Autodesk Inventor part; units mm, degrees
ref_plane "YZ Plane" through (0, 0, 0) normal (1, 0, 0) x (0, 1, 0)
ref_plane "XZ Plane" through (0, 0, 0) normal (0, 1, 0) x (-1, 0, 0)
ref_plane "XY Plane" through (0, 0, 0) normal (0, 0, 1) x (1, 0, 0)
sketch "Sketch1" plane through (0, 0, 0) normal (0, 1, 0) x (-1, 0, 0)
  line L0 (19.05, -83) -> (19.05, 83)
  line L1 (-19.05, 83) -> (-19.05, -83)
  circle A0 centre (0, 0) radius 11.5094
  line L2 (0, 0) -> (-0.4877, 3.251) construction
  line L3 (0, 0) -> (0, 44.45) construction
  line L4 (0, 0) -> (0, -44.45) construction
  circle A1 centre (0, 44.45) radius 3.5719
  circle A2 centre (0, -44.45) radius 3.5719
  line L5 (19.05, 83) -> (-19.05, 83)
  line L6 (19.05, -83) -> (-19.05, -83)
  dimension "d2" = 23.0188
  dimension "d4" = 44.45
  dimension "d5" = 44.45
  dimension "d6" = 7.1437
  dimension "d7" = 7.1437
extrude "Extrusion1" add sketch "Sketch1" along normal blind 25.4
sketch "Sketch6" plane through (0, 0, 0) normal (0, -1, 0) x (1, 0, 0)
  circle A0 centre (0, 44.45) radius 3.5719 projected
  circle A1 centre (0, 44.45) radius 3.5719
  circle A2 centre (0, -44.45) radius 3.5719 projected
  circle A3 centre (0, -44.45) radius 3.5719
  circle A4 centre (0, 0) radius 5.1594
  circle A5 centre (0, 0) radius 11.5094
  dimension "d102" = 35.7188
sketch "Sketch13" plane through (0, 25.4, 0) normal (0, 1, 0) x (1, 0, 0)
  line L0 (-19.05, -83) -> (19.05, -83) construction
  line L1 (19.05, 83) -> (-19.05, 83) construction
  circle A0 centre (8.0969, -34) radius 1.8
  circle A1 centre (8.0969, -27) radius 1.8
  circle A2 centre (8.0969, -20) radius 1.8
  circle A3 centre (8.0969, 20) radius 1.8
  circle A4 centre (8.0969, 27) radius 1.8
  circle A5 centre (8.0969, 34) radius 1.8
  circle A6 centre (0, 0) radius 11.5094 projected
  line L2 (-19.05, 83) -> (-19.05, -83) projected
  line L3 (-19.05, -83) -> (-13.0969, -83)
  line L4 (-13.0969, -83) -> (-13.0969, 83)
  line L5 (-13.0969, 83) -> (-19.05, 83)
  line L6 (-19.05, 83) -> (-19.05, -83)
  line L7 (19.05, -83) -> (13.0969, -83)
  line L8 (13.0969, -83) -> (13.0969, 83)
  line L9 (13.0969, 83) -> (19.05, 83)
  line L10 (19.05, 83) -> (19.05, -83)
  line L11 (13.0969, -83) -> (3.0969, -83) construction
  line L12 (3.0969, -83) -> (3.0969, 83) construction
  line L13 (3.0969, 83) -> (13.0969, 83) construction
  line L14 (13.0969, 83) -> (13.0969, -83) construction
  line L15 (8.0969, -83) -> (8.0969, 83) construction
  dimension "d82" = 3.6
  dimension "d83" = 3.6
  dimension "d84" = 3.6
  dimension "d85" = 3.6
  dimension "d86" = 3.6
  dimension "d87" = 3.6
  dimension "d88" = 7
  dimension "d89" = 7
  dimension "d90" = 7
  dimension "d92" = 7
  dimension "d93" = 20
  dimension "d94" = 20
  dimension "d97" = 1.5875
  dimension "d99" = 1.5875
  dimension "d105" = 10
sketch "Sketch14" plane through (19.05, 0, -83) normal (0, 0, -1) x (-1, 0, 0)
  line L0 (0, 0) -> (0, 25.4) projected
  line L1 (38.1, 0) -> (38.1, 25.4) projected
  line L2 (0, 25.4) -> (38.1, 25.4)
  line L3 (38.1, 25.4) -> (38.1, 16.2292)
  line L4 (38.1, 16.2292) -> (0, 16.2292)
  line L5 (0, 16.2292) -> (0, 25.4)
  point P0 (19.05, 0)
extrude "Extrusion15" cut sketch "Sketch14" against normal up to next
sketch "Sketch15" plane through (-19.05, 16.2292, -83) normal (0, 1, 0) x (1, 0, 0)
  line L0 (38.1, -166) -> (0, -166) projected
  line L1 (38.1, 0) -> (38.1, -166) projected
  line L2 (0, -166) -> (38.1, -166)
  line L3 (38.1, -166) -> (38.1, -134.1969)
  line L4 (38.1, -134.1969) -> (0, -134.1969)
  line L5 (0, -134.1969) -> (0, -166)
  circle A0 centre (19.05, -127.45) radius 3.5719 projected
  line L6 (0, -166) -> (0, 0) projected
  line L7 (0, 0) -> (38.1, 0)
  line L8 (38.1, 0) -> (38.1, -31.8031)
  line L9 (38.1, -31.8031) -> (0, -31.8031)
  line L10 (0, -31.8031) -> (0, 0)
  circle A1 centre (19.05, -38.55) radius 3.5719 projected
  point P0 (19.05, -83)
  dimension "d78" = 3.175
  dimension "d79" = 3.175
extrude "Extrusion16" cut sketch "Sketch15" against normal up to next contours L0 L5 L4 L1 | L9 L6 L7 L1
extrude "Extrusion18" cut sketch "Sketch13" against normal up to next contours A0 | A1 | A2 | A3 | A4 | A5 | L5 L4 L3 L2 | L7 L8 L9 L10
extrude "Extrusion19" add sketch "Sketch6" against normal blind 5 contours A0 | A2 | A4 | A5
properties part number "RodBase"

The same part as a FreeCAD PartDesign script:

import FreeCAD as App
import Part
import Sketcher
from FreeCAD import Vector
Q = App.Units.Quantity


def add_polygon(sketch, points):
    """Adds a closed chain of lines whose ends are joined by coincident constraints."""
    first, n = sketch.GeometryCount, len(points)
    for a, b in zip(points, points[1:] + points[:1]):
        sketch.addGeometry(Part.LineSegment(App.Vector(*a, 0), App.Vector(*b, 0)), False)
    for i in range(n):
        sketch.addConstraint(Sketcher.Constraint("Coincident", first + i, 2, first + (i + 1) % n, 1))

doc = App.newDocument("Part")
params = doc.addObject("Spreadsheet::Sheet", "Params")
for row, (alias, value) in enumerate([
    ("sketch1_diameter", "0.281252 in"),
    ("sketch1_diameter2", "0.906252 in"),
    ("sketch1_width", "1.5 in"),
    ("pad1_length", "1 in"),
    ("sketch2_width", "1.5 in"),
    ("sketch3_width", "1.5 in"),
    ("pocket2_length", "16.2292 mm"),
    ("sketch4_width", "0.2343701 in"),
    ("pocket3_length", "1 in"),
    ("sketch5_diameter", "0.281252 in"),
    ("sketch5_diameter2", "0.906252 in"),
    ("pad2_length", "5 mm"),
], start=1):
    params.set(f"A{row}", alias)
    params.set(f"B{row}", "=" + value)
    params.setAlias(f"B{row}", alias)

body = doc.addObject("PartDesign::Body", "Body")

# Sketch on XZ plane
sketch1 = body.newObject("Sketcher::SketchObject", "Sketch")
sketch1.AttachmentSupport = (doc.getObject("XZ_Plane"), [""])
sketch1.MapMode = "FlatFace"
add_polygon(sketch1, [(19.1, -83), (-19.1, -83), (-19.1, 83), (19.1, 83)])  # lines 0-3
sketch1.addGeometry(Part.Circle(Vector(0, -44.5, 0), Vector(0, 0, 1), 3.6), False)  # 4
sketch1.addGeometry(Part.Circle(Vector(0, 0, 0), Vector(0, 0, 1), 11.5), False)  # 5
sketch1.addGeometry(Part.Circle(Vector(0, 44.5, 0), Vector(0, 0, 1), 3.6), False)  # 6
sketch1.addConstraint(Sketcher.Constraint("Horizontal", 0))
sketch1.addConstraint(Sketcher.Constraint("Vertical", 1))
sketch1.addConstraint(Sketcher.Constraint("Horizontal", 2))
sketch1.addConstraint(Sketcher.Constraint("Vertical", 3))
sketch1.addConstraint(Sketcher.Constraint("Coincident", 5, 3, -1, 1))
sketch1.addConstraint(Sketcher.Constraint("Equal", 4, 6))
sketch1.addConstraint(Sketcher.Constraint("Symmetric", 4, 3, 6, 3, -1, 1))
sketch1.addConstraint(Sketcher.Constraint("Symmetric", 0, 2, 2, 2, -1, 1))
sketch1.addConstraint(Sketcher.Constraint("PointOnObject", 4, 3, -2))
sketch1.addConstraint(Sketcher.Constraint("Diameter", 4, Q("0.281252 in")))
sketch1.addConstraint(Sketcher.Constraint("Diameter", 5, Q("0.906252 in")))
sketch1.addConstraint(Sketcher.Constraint("DistanceY", 4, 3, -1, 1, Q("1.75 in")))
sketch1.addConstraint(Sketcher.Constraint("DistanceX", 0, 2, 0, 1, Q("1.5 in")))
sketch1.addConstraint(Sketcher.Constraint("DistanceY", 1, 1, 1, 2, 166.0))
sketch1.setExpression("Constraints[13]", "Params.sketch1_diameter")
sketch1.setExpression("Constraints[14]", "Params.sketch1_diameter2")
sketch1.setExpression("Constraints[16]", "Params.sketch1_width")
pad1 = body.newObject("PartDesign::Pad", "Pad")
pad1.Profile = sketch1
pad1.setExpression("Length", "Params.pad1_length")
pad1.Reversed = True

# Sketch on XY plane
sketch2 = body.newObject("Sketcher::SketchObject", "Sketch001")
sketch2.AttachmentSupport = (doc.getObject("XY_Plane"), [""])
sketch2.MapMode = "FlatFace"
sketch2.AttachmentOffset = App.Placement(Vector(0, 0, -83), App.Rotation())
add_polygon(sketch2, [(19, 25), (19, 16), (-19, 16), (-19, 25)])  # lines 0-3
sketch2.addConstraint(Sketcher.Constraint("Vertical", 0))
sketch2.addConstraint(Sketcher.Constraint("Horizontal", 1))
sketch2.addConstraint(Sketcher.Constraint("Vertical", 2))
sketch2.addConstraint(Sketcher.Constraint("Horizontal", 3))
sketch2.addConstraint(Sketcher.Constraint("DistanceX", 1, 2, 1, 1, Q("1.5 in")))
sketch2.addConstraint(Sketcher.Constraint("DistanceY", -1, 1, 2, 2, Q("1 in")))
sketch2.addConstraint(Sketcher.Constraint("DistanceX", -1, 1, 0, 2, Q("0.75 in")))
sketch2.addConstraint(Sketcher.Constraint("DistanceY", 0, 2, 0, 1, 9.1708))
sketch2.setExpression("Constraints[8]", "Params.sketch2_width")
pocket1 = body.newObject("PartDesign::Pocket", "Pocket")
pocket1.Profile = sketch2
pocket1.Type = "UpToFirst"
pocket1.Reversed = True

# Sketch on XZ plane
sketch3 = body.newObject("Sketcher::SketchObject", "Sketch002")
sketch3.AttachmentSupport = (doc.getObject("XZ_Plane"), [""])
sketch3.MapMode = "FlatFace"
sketch3.AttachmentOffset = App.Placement(Vector(0, 0, -16.2292), App.Rotation())
add_polygon(sketch3, [(-19, 83), (19, 83), (19, 51), (-19, 51)])  # lines 0-3
add_polygon(sketch3, [(-19, -51), (19, -51), (19, -83), (-19, -83)])  # lines 4-7
sketch3.addConstraint(Sketcher.Constraint("Horizontal", 0))
sketch3.addConstraint(Sketcher.Constraint("Vertical", 1))
sketch3.addConstraint(Sketcher.Constraint("Horizontal", 2))
sketch3.addConstraint(Sketcher.Constraint("Vertical", 3))
sketch3.addConstraint(Sketcher.Constraint("Horizontal", 4))
sketch3.addConstraint(Sketcher.Constraint("Vertical", 5))
sketch3.addConstraint(Sketcher.Constraint("Horizontal", 6))
sketch3.addConstraint(Sketcher.Constraint("Vertical", 7))
sketch3.addConstraint(Sketcher.Constraint("Symmetric", 2, 2, 4, 2, -1, 1))
sketch3.addConstraint(Sketcher.Constraint("Symmetric", 0, 2, 6, 2, -1, 1))
sketch3.addConstraint(Sketcher.Constraint("Vertical", 1, 2, 4, 2))
sketch3.addConstraint(Sketcher.Constraint("DistanceX", 0, 1, 0, 2, Q("1.5 in")))
sketch3.addConstraint(Sketcher.Constraint("DistanceY", 1, 2, 1, 1, Q("1.2521 in")))
sketch3.addConstraint(Sketcher.Constraint("DistanceY", -1, 1, 1, 2, Q("2.0156299 in")))
sketch3.setExpression("Constraints[19]", "Params.sketch3_width")
pocket2 = body.newObject("PartDesign::Pocket", "Pocket001")
pocket2.Profile = sketch3
pocket2.setExpression("Length", "Params.pocket2_length")
pocket2.Reversed = True

# Sketch on XZ plane
sketch4 = body.newObject("Sketcher::SketchObject", "Sketch003")
sketch4.AttachmentSupport = (doc.getObject("XZ_Plane"), [""])
sketch4.MapMode = "FlatFace"
sketch4.AttachmentOffset = App.Placement(Vector(0, 0, -1 * 25.4), App.Rotation())
sketch4.addGeometry(Part.Circle(Vector(8.1, 34, 0), Vector(0, 0, 1), 1.8), False)  # 0
sketch4.addGeometry(Part.Circle(Vector(8.1, 27, 0), Vector(0, 0, 1), 1.8), False)  # 1
sketch4.addGeometry(Part.Circle(Vector(8.1, 20, 0), Vector(0, 0, 1), 1.8), False)  # 2
sketch4.addGeometry(Part.Circle(Vector(8.1, -20, 0), Vector(0, 0, 1), 1.8), False)  # 3
sketch4.addGeometry(Part.Circle(Vector(8.1, -27, 0), Vector(0, 0, 1), 1.8), False)  # 4
sketch4.addGeometry(Part.Circle(Vector(8.1, -34, 0), Vector(0, 0, 1), 1.8), False)  # 5
add_polygon(sketch4, [(-13.1, -83), (-19.1, -83), (-19.1, 83), (-13.1, 83)])  # lines 6-9
add_polygon(sketch4, [(13.1, 83), (19.1, 83), (19.1, -83), (13.1, -83)])  # lines 10-13
sketch4.addConstraint(Sketcher.Constraint("Horizontal", 6))
sketch4.addConstraint(Sketcher.Constraint("Vertical", 7))
sketch4.addConstraint(Sketcher.Constraint("Horizontal", 8))
sketch4.addConstraint(Sketcher.Constraint("Vertical", 9))
sketch4.addConstraint(Sketcher.Constraint("Horizontal", 10))
sketch4.addConstraint(Sketcher.Constraint("Vertical", 11))
sketch4.addConstraint(Sketcher.Constraint("Horizontal", 12))
sketch4.addConstraint(Sketcher.Constraint("Vertical", 13))
sketch4.addConstraint(Sketcher.Constraint("Equal", 0, 1))
sketch4.addConstraint(Sketcher.Constraint("Equal", 1, 2))
sketch4.addConstraint(Sketcher.Constraint("Equal", 2, 3))
sketch4.addConstraint(Sketcher.Constraint("Equal", 3, 4))
sketch4.addConstraint(Sketcher.Constraint("Equal", 4, 5))
sketch4.addConstraint(Sketcher.Constraint("Symmetric", 6, 2, 10, 2, -1, 1))
sketch4.addConstraint(Sketcher.Constraint("Symmetric", 8, 2, 12, 2, -1, 1))
sketch4.addConstraint(Sketcher.Constraint("Symmetric", 2, 3, 3, 3, -1))
sketch4.addConstraint(Sketcher.Constraint("Symmetric", 1, 3, 4, 3, -1))
sketch4.addConstraint(Sketcher.Constraint("Symmetric", 0, 3, 5, 3, -1))
sketch4.addConstraint(Sketcher.Constraint("Horizontal", 8, 2, 10, 2))
sketch4.addConstraint(Sketcher.Constraint("Vertical", 0, 3, 1, 3))
sketch4.addConstraint(Sketcher.Constraint("Vertical", 1, 3, 2, 3))
sketch4.addConstraint(Sketcher.Constraint("Diameter", 0, 3.6))
sketch4.addConstraint(Sketcher.Constraint("DistanceY", -1, 1, 2, 3, Q("0.7874 in")))
sketch4.addConstraint(Sketcher.Constraint("DistanceY", 1, 3, 0, 3, Q("0.2756 in")))
sketch4.addConstraint(Sketcher.Constraint("DistanceY", 2, 3, 1, 3, Q("0.2756 in")))
sketch4.addConstraint(Sketcher.Constraint("DistanceX", 7, 2, 10, 2, Q("1.5 in")))
sketch4.addConstraint(Sketcher.Constraint("DistanceX", 6, 2, 6, 1, Q("0.2343701 in")))
sketch4.addConstraint(Sketcher.Constraint("DistanceY", 7, 1, 7, 2, 166.0))
sketch4.addConstraint(Sketcher.Constraint("DistanceX", 8, 2, 0, 3, Q("0.8344 in")))
sketch4.setExpression("Constraints[34]", "Params.sketch4_width")
pocket3 = body.newObject("PartDesign::Pocket", "Pocket002")
pocket3.Profile = sketch4
pocket3.setExpression("Length", "Params.pocket3_length")
pocket3.Reversed = True

# Sketch on XZ plane
sketch5 = body.newObject("Sketcher::SketchObject", "Sketch004")
sketch5.AttachmentSupport = (doc.getObject("XZ_Plane"), [""])
sketch5.MapMode = "FlatFace"
sketch5.addGeometry(Part.Circle(Vector(0, 44.5, 0), Vector(0, 0, 1), 3.6), False)
sketch5.addGeometry(Part.Circle(Vector(0, -44.5, 0), Vector(0, 0, 1), 3.6), False)
sketch5.addGeometry(Part.Circle(Vector(0, 0, 0), Vector(0, 0, 1), 11.5), False)
sketch5.addConstraint(Sketcher.Constraint("Coincident", 2, 3, -1, 1))
sketch5.addConstraint(Sketcher.Constraint("Equal", 0, 1))
sketch5.addConstraint(Sketcher.Constraint("Symmetric", 0, 3, 1, 3, -1, 1))
sketch5.addConstraint(Sketcher.Constraint("PointOnObject", 0, 3, -2))
sketch5.addConstraint(Sketcher.Constraint("Diameter", 0, Q("0.281252 in")))
sketch5.addConstraint(Sketcher.Constraint("Diameter", 2, Q("0.906252 in")))
sketch5.addConstraint(Sketcher.Constraint("DistanceY", 1, 3, 0, 3, Q("3.5 in")))
sketch5.setExpression("Constraints[4]", "Params.sketch5_diameter")
sketch5.setExpression("Constraints[5]", "Params.sketch5_diameter2")
pad2 = body.newObject("PartDesign::Pad", "Pad001")
pad2.Profile = sketch5
pad2.setExpression("Length", "Params.pad2_length")
pad2.Reversed = True

doc.recompute()
